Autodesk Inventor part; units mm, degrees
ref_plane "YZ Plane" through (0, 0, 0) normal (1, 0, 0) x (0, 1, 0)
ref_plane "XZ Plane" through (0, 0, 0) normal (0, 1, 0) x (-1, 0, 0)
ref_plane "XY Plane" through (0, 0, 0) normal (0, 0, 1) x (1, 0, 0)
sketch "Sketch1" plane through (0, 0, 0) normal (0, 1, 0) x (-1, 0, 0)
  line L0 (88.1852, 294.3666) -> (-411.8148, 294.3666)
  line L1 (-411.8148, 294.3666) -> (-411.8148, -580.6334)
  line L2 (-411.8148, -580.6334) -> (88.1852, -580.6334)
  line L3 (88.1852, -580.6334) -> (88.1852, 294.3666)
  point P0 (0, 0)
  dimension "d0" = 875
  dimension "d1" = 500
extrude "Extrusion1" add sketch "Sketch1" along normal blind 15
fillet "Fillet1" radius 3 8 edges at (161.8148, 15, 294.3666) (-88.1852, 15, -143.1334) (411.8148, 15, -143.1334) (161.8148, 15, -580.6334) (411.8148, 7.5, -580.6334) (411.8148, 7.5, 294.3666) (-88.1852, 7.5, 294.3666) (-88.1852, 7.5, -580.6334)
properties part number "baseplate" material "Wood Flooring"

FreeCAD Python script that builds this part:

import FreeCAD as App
import Part
import Sketcher

V = App.Vector


def edges_at(feature, points):
    """Names of the edges that pass closest to the given points."""
    edges = feature.Shape.Edges
    near = lambda p: min(range(len(edges)), key=lambda i: edges[i].distToShape(Part.Vertex(*p))[0])
    return sorted({f"Edge{near(p) + 1}" for p in points})

doc = App.newDocument("Part")
body = doc.addObject("PartDesign::Body", "Body")

sketch1 = body.newObject("Sketcher::SketchObject", "Sketch")
sketch1.AttachmentSupport = (doc.getObject("XZ_Plane"), [""])
sketch1.MapMode = "FlatFace"
sketch1.addGeometry([
    Part.LineSegment(V(-88, -581, 0), V(-88, 294, 0)),
    Part.LineSegment(V(-88, 294, 0), V(412, 294, 0)),
    Part.LineSegment(V(412, 294, 0), V(412, -581, 0)),
    Part.LineSegment(V(412, -581, 0), V(-88, -581, 0)),
], False)
sketch1.addConstraint([
    Sketcher.Constraint("Coincident", 0, 2, 1, 1),
    Sketcher.Constraint("Coincident", 1, 2, 2, 1),
    Sketcher.Constraint("Coincident", 2, 2, 3, 1),
    Sketcher.Constraint("Coincident", 3, 2, 0, 1),
    Sketcher.Constraint("Vertical", 0),
    Sketcher.Constraint("Horizontal", 1),
    Sketcher.Constraint("Vertical", 2),
    Sketcher.Constraint("Horizontal", 3),
    Sketcher.Constraint("DistanceX", 1, 1, 1, 2, 500.0),
    Sketcher.Constraint("DistanceY", 0, 1, 0, 2, 875.0),
    Sketcher.Constraint("DistanceX", 0, 2, -1, 1, 88.1852),
    Sketcher.Constraint("DistanceY", -1, 1, 0, 2, 294.3666),
])
pad1 = body.newObject("PartDesign::Pad", "Pad")
pad1.Profile = sketch1
pad1.Length = 15
pad1.Reversed = True
doc.recompute()

fillet = body.newObject("PartDesign::Fillet", "Fillet")
fillet.Base = (pad1, edges_at(pad1, [
    (161.815, 15, 294.367),
    (-88.185, 15, -143.133),
    (411.815, 15, -143.133),
    (161.815, 15, -580.633),
    (411.815, 7.5, -580.633),
    (411.815, 7.5, 294.367),
    (-88.185, 7.5, 294.367),
    (-88.185, 7.5, -580.633),
]))
fillet.Radius = 3

doc.recompute()
